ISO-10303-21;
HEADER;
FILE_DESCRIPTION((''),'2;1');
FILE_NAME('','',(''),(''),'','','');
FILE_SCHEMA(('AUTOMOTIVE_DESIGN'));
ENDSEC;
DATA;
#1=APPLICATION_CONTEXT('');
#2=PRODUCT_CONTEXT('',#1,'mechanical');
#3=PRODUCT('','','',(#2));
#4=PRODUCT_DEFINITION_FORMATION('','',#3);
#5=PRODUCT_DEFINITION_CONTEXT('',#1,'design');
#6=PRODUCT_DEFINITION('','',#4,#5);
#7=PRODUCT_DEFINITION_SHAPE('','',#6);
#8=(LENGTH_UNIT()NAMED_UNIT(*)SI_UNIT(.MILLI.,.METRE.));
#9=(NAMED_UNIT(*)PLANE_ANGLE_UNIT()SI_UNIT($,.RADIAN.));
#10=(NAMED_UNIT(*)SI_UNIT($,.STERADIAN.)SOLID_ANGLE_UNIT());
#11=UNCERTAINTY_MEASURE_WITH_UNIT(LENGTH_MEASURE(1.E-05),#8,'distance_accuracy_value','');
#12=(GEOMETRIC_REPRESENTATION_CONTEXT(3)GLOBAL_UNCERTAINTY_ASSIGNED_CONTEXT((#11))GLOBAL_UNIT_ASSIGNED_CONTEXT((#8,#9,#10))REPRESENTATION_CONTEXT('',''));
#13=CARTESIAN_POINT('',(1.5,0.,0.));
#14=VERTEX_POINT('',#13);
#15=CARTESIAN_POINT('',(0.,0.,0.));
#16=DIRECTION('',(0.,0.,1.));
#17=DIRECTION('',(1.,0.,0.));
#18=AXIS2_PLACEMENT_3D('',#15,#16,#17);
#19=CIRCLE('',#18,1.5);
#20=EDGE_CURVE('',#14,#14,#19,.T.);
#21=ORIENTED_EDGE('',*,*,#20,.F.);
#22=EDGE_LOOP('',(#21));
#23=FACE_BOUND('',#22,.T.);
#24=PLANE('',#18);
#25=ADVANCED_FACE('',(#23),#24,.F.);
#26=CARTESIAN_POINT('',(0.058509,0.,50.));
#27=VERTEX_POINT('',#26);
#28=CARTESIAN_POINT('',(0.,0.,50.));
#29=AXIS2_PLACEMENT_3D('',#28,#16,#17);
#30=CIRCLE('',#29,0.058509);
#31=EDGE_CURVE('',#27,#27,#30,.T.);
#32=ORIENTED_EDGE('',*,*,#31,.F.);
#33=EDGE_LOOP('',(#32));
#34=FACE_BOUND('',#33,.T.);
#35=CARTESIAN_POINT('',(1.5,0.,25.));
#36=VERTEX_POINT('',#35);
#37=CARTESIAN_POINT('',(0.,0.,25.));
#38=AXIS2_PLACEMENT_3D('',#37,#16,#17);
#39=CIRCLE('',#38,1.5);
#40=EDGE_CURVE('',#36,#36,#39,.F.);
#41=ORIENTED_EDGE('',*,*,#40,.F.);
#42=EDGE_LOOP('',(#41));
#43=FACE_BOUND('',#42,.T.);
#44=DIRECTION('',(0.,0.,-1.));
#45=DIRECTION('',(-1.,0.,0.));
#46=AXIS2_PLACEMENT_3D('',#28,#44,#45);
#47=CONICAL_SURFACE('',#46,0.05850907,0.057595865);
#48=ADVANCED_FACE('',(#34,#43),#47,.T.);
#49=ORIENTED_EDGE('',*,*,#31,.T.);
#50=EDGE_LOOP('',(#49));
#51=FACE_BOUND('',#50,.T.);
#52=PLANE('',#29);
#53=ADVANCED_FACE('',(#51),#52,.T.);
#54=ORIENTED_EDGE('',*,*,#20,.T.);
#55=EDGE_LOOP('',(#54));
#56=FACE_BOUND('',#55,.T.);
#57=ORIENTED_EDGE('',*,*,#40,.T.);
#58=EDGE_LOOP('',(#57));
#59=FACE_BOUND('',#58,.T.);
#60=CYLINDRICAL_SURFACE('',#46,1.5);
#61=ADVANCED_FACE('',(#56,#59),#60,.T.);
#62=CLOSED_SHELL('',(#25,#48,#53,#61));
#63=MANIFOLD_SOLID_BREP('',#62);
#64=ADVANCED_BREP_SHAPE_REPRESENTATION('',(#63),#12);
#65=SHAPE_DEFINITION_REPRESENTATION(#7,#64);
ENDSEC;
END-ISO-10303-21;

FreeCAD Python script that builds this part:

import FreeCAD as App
import Part
import Sketcher

V = App.Vector


def edges_at(feature, points):
    """Names of the edges that pass closest to the given points."""
    edges = feature.Shape.Edges
    near = lambda p: min(range(len(edges)), key=lambda i: edges[i].distToShape(Part.Vertex(*p))[0])
    return sorted({f"Edge{near(p) + 1}" for p in points})

doc = App.newDocument("Part")
body = doc.addObject("PartDesign::Body", "Body")

# Sketch on XY plane
sketch1 = body.newObject("Sketcher::SketchObject", "Sketch")
sketch1.AttachmentSupport = (doc.getObject("XY_Plane"), [""])
sketch1.MapMode = "FlatFace"
sketch1.addGeometry(Part.Circle(V(0, 0, 0), V(0, 0, 1), 1.5), False)
sketch1.addConstraint([
    Sketcher.Constraint("Coincident", 0, 3, -1, 1),
    Sketcher.Constraint("Diameter", 0, 3.0),
])
pad1 = body.newObject("PartDesign::Pad", "Pad")
pad1.Profile = sketch1
pad1.Length = 50
doc.recompute()

chamfer = body.newObject("PartDesign::Chamfer", "Chamfer")
chamfer.Base = (pad1, edges_at(pad1, [(-1.5, 0, 50)]))
chamfer.ChamferType = "Two distances"
chamfer.Size = 25
chamfer.Size2 = 1.441491

doc.recompute()
